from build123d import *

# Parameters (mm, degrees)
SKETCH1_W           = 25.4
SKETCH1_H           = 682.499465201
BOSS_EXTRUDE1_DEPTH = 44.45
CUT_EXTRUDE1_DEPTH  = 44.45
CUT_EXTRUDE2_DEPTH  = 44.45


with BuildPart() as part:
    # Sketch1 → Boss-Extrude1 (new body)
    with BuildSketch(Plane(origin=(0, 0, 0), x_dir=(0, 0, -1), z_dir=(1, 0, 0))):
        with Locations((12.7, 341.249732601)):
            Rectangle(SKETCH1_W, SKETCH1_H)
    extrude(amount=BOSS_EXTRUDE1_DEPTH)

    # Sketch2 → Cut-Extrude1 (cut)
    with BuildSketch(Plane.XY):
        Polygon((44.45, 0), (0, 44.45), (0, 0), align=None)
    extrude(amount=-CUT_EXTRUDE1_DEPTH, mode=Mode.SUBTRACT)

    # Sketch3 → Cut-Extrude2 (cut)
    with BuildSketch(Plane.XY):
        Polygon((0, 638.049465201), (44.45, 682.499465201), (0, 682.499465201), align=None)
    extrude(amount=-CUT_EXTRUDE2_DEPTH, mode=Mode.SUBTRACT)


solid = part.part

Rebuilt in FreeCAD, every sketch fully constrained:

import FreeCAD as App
import Part
import Sketcher
Q = App.Units.Quantity


def add_polygon(sketch, points):
    """Adds a closed chain of lines whose ends are joined by coincident constraints."""
    first, n = sketch.GeometryCount, len(points)
    for a, b in zip(points, points[1:] + points[:1]):
        sketch.addGeometry(Part.LineSegment(App.Vector(*a, 0), App.Vector(*b, 0)), False)
    for i in range(n):
        sketch.addConstraint(Sketcher.Constraint("Coincident", first + i, 2, first + (i + 1) % n, 1))

doc = App.newDocument("Part")
body = doc.addObject("PartDesign::Body", "Body")

sketch1 = body.newObject("Sketcher::SketchObject", "Sketch")
sketch1.AttachmentSupport = (doc.getObject("YZ_Plane"), [""])
sketch1.MapMode = "FlatFace"
add_polygon(sketch1, [(682, 0), (0, 0), (0, -25), (682, -25)])
sketch1.addConstraint([
    Sketcher.Constraint("Horizontal", 0),
    Sketcher.Constraint("Vertical", 1),
    Sketcher.Constraint("Horizontal", 2),
    Sketcher.Constraint("Vertical", 3),
    Sketcher.Constraint("Coincident", 0, 2, -1, 1),
    Sketcher.Constraint("DistanceY", 1, 2, 1, 1, Q("1 in")),
    Sketcher.Constraint("DistanceX", 0, 2, 0, 1, 682.499465),
])
pad1 = body.newObject("PartDesign::Pad", "Pad")
pad1.Profile = sketch1
pad1.Length = Q("1.75 in")

sketch2 = body.newObject("Sketcher::SketchObject", "Sketch001")
sketch2.AttachmentSupport = (doc.getObject("XY_Plane"), [""])
sketch2.MapMode = "FlatFace"
add_polygon(sketch2, [(44, 0), (0, 44), (0, 0)])
sketch2.addConstraint([
    Sketcher.Constraint("Vertical", 1),
    Sketcher.Constraint("Horizontal", 2),
    Sketcher.Constraint("Coincident", 1, 2, -1, 1),
    Sketcher.Constraint("Equal", 2, 1),
    Sketcher.Constraint("DistanceX", 2, 1, 2, 2, Q("1.75 in")),
])
pocket1 = body.newObject("PartDesign::Pocket", "Pocket")
pocket1.Profile = sketch2
pocket1.Length = Q("1.75 in")

sketch3 = body.newObject("Sketcher::SketchObject", "Sketch002")
sketch3.AttachmentSupport = (doc.getObject("XY_Plane"), [""])
sketch3.MapMode = "FlatFace"
add_polygon(sketch3, [(0, 638), (44, 682), (0, 682)])
sketch3.addConstraint([
    Sketcher.Constraint("Horizontal", 1),
    Sketcher.Constraint("Vertical", 2),
    Sketcher.Constraint("PointOnObject", 1, 2, -2),
    Sketcher.Constraint("Equal", 1, 2),
    Sketcher.Constraint("DistanceX", 1, 2, 1, 1, Q("1.75 in")),
    Sketcher.Constraint("DistanceY", -1, 1, 0, 2, 682.499465),
])
pocket2 = body.newObject("PartDesign::Pocket", "Pocket001")
pocket2.Profile = sketch3
pocket2.Length = Q("1.75 in")

doc.recompute()
